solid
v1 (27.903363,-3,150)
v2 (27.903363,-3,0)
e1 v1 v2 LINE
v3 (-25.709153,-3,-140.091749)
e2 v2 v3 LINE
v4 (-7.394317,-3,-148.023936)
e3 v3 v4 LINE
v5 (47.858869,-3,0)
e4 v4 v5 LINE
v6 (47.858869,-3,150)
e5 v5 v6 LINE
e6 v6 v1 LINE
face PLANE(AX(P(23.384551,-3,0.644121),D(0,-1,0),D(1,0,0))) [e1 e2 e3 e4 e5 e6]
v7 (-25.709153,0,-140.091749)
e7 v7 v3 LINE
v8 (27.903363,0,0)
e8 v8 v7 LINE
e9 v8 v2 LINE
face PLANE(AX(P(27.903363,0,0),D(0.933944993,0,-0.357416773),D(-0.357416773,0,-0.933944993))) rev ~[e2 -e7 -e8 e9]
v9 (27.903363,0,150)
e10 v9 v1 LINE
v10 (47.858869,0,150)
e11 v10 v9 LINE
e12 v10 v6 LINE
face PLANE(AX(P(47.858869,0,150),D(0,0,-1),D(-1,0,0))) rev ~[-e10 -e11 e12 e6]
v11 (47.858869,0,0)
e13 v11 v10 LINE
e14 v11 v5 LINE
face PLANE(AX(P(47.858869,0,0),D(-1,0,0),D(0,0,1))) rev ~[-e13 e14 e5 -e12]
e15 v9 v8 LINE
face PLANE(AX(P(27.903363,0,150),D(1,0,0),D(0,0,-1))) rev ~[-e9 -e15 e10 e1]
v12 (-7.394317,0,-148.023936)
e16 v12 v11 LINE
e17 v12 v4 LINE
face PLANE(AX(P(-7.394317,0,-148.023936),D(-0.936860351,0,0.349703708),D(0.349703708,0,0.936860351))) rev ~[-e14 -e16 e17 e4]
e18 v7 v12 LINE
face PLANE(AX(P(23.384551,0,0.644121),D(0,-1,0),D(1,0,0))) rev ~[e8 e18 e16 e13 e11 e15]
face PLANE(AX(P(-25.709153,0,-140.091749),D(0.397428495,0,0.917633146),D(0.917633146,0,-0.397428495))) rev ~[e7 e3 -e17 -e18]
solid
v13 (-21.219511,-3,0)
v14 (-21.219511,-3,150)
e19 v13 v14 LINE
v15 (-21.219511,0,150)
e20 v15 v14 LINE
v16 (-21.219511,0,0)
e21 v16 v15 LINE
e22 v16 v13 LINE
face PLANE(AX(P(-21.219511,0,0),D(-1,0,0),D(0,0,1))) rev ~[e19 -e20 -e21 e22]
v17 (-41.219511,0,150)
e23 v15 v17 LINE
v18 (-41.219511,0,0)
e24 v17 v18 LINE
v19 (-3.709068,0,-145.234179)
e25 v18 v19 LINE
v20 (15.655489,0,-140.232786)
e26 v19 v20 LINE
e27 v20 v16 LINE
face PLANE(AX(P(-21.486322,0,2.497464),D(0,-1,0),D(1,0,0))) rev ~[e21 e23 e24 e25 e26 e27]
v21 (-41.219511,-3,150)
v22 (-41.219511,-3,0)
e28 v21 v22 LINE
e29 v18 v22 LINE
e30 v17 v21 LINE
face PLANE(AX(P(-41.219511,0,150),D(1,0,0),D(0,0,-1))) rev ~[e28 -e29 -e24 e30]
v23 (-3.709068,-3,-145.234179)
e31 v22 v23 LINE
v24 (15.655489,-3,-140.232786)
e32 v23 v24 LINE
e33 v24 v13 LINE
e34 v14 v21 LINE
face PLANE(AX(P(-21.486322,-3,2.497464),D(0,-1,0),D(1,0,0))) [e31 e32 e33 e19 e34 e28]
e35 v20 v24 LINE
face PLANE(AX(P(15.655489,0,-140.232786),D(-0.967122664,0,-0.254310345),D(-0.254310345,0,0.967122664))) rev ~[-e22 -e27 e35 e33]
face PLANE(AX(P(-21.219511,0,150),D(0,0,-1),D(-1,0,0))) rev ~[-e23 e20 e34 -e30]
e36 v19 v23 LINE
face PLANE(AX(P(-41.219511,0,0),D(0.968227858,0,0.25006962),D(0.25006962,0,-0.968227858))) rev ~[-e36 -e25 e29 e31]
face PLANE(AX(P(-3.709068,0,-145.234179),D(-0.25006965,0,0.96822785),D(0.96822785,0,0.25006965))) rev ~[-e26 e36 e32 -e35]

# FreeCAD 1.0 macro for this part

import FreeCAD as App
import Part
import Sketcher

V = App.Vector

doc = App.newDocument("Part")
body = doc.addObject("PartDesign::Body", "Body")

# Sketch on XZ plane
sketch1 = body.newObject("Sketcher::SketchObject", "Sketch")
sketch1.AttachmentSupport = (doc.getObject("XZ_Plane"), [""])
sketch1.MapMode = "FlatFace"
sketch1.addGeometry(Part.LineSegment(V(-41, 150, 0), V(-41, 0, 0)), False)
sketch1.addGeometry(Part.LineSegment(V(-41, 0, 0), V(-4, -145, 0)), False)
sketch1.addGeometry(Part.LineSegment(V(-4, -145, 0), V(16, -140, 0)), False)
sketch1.addGeometry(Part.LineSegment(V(16, -140, 0), V(-21, 0, 0)), False)
sketch1.addGeometry(Part.LineSegment(V(-21, 0, 0), V(-21, 150, 0)), False)
sketch1.addGeometry(Part.LineSegment(V(-21, 150, 0), V(-41, 150, 0)), False)
sketch1.addConstraint(Sketcher.Constraint("Coincident", 0, 2, 1, 1))
sketch1.addConstraint(Sketcher.Constraint("Coincident", 1, 2, 2, 1))
sketch1.addConstraint(Sketcher.Constraint("Coincident", 2, 2, 3, 1))
sketch1.addConstraint(Sketcher.Constraint("Coincident", 3, 2, 4, 1))
sketch1.addConstraint(Sketcher.Constraint("Coincident", 4, 2, 5, 1))
sketch1.addConstraint(Sketcher.Constraint("Coincident", 5, 2, 0, 1))
sketch1.addConstraint(Sketcher.Constraint("Vertical", 0))
sketch1.addConstraint(Sketcher.Constraint("Vertical", 4))
sketch1.addConstraint(Sketcher.Constraint("Horizontal", 5))
sketch1.addConstraint(Sketcher.Constraint("PointOnObject", 0, 2, -1))
sketch1.addConstraint(Sketcher.Constraint("PointOnObject", 3, 2, -1))
sketch1.addConstraint(Sketcher.Constraint("Perpendicular", 1, 2))
sketch1.addConstraint(Sketcher.Constraint("DistanceX", 5, 2, 5, 1, 20.0))
sketch1.addConstraint(Sketcher.Constraint("DistanceY", 0, 2, 0, 1, 150.0))
sketch1.addConstraint(Sketcher.Constraint("Distance", 1, 150.0))
sketch1.addConstraint(Sketcher.Constraint("Distance", 2, 20.0))
sketch1.addConstraint(Sketcher.Constraint("Distance", 3, 145.0))
sketch1.addConstraint(Sketcher.Constraint("DistanceX", 0, 2, -1, 1, 41.219511))
pad1 = body.newObject("PartDesign::Pad", "Pad")
pad1.Profile = sketch1
pad1.Length = 3
body2 = doc.addObject("PartDesign::Body", "Body001")

# Sketch on XZ plane
sketch2 = body2.newObject("Sketcher::SketchObject", "Sketch001")
sketch2.AttachmentSupport = (doc.getObject("XZ_Plane001"), [""])
sketch2.MapMode = "FlatFace"
sketch2.addGeometry(Part.LineSegment(V(48, 150, 0), V(28, 150, 0)), False)
sketch2.addGeometry(Part.LineSegment(V(28, 150, 0), V(28, 0, 0)), False)
sketch2.addGeometry(Part.LineSegment(V(28, 0, 0), V(-26, -140, 0)), False)
sketch2.addGeometry(Part.LineSegment(V(-26, -140, 0), V(-7, -148, 0)), False)
sketch2.addGeometry(Part.LineSegment(V(-7, -148, 0), V(48, 0, 0)), False)
sketch2.addGeometry(Part.LineSegment(V(48, 0, 0), V(48, 150, 0)), False)
sketch2.addConstraint(Sketcher.Constraint("Coincident", 0, 2, 1, 1))
sketch2.addConstraint(Sketcher.Constraint("Coincident", 1, 2, 2, 1))
sketch2.addConstraint(Sketcher.Constraint("Coincident", 2, 2, 3, 1))
sketch2.addConstraint(Sketcher.Constraint("Coincident", 3, 2, 4, 1))
sketch2.addConstraint(Sketcher.Constraint("Coincident", 4, 2, 5, 1))
sketch2.addConstraint(Sketcher.Constraint("Coincident", 5, 2, 0, 1))
sketch2.addConstraint(Sketcher.Constraint("Horizontal", 0))
sketch2.addConstraint(Sketcher.Constraint("Vertical", 1))
sketch2.addConstraint(Sketcher.Constraint("Vertical", 5))
sketch2.addConstraint(Sketcher.Constraint("PointOnObject", 1, 2, -1))
sketch2.addConstraint(Sketcher.Constraint("PointOnObject", 4, 2, -1))
sketch2.addConstraint(Sketcher.Constraint("DistanceY", 1, 2, 1, 1, 150.0))
sketch2.addConstraint(Sketcher.Constraint("Distance", 2, 150.0))
sketch2.addConstraint(Sketcher.Constraint("Distance", 4, 158.000001))
sketch2.addConstraint(Sketcher.Constraint("DistanceX", 0, 2, 0, 1, 19.955506))
sketch2.addConstraint(Sketcher.Constraint("DistanceY", 2, 2, -1, 1, 140.091749))
sketch2.addConstraint(Sketcher.Constraint("DistanceX", -1, 1, 4, 2, 47.858869))
sketch2.addConstraint(Sketcher.Constraint("DistanceX", 3, 2, 1, 2, 35.29768))
pad2 = body2.newObject("PartDesign::Pad", "Pad001")
pad2.Profile = sketch2
pad2.Length = 3

doc.recompute()
